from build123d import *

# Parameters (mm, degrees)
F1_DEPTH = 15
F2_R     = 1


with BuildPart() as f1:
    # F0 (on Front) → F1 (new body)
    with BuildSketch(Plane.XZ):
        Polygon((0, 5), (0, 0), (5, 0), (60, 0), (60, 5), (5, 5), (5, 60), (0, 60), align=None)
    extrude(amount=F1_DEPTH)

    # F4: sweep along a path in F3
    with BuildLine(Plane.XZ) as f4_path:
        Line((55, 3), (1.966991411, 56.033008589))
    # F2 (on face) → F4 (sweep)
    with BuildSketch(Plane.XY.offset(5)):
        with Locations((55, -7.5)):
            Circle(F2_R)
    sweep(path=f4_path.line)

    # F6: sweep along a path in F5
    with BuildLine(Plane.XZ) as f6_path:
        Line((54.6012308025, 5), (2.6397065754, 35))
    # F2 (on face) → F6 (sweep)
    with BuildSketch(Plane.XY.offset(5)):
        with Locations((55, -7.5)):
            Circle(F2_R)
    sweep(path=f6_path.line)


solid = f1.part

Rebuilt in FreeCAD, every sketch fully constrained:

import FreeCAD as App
import Part
import Sketcher

V = App.Vector
Q = App.Units.Quantity

doc = App.newDocument("Part")
body = doc.addObject("PartDesign::Body", "Body")

# Sketch on XZ plane
sketch1 = body.newObject("Sketcher::SketchObject", "Sketch")
sketch1.AttachmentSupport = (doc.getObject("XZ_Plane"), [""])
sketch1.MapMode = "FlatFace"
sketch1.addGeometry([
    Part.LineSegment(V(0, 0, 0), V(60, 0, 0)),  # 0
    Part.LineSegment(V(60, 0, 0), V(60, 5, 0)),  # 1
    Part.LineSegment(V(60, 5, 0), V(5, 5, 0)),  # 2
    Part.LineSegment(V(5, 5, 0), V(5, 60, 0)),  # 3
    Part.LineSegment(V(5, 60, 0), V(0, 60, 0)),  # 4
    Part.LineSegment(V(0, 60, 0), V(0, 0, 0)),  # 5
], False)
sketch1.addConstraint([
    Sketcher.Constraint("Coincident", 0, 2, 1, 1),
    Sketcher.Constraint("Coincident", 1, 2, 2, 1),
    Sketcher.Constraint("Coincident", 2, 2, 3, 1),
    Sketcher.Constraint("Coincident", 3, 2, 4, 1),
    Sketcher.Constraint("Coincident", 4, 2, 5, 1),
    Sketcher.Constraint("Coincident", 5, 2, 0, 1),
    Sketcher.Constraint("Horizontal", 0),
    Sketcher.Constraint("Vertical", 1),
    Sketcher.Constraint("Horizontal", 2),
    Sketcher.Constraint("Vertical", 3),
    Sketcher.Constraint("Horizontal", 4),
    Sketcher.Constraint("Vertical", 5),
    Sketcher.Constraint("Coincident", 5, 2, -1, 1),
    Sketcher.Constraint("Equal", 4, 1),
    Sketcher.Constraint("Equal", 2, 3),
    Sketcher.Constraint("DistanceX", 0, 1, 0, 2, Q("60 mm")),
    Sketcher.Constraint("DistanceX", 2, 2, 2, 1, Q("55 mm")),
])
pad1 = body.newObject("PartDesign::Pad", "Pad")
pad1.Profile = sketch1
pad1.Length = 15

# Sketch on XY plane
sketch2 = body.newObject("Sketcher::SketchObject", "Sketch001")
sketch2.AttachmentSupport = (doc.getObject("XY_Plane"), [""])
sketch2.MapMode = "FlatFace"
sketch2.AttachmentOffset = App.Placement(V(0, 0, 5), App.Rotation())
sketch2.addGeometry(Part.Circle(V(55, -7.5, 0), V(0, 0, 1), 1), False)
sketch2.addConstraint([
    Sketcher.Constraint("Diameter", 0, Q("2 mm")),
    Sketcher.Constraint("DistanceX", -1, 1, 0, 3, Q("55 mm")),
    Sketcher.Constraint("DistanceY", 0, 3, -1, 1, Q("7.5 mm")),
])

# Sketch on an angled plane
sketch3 = body.newObject("Sketcher::SketchObject", "Sketch002")
sketch3.Placement = App.Placement(V(29, 0, 29), App.Rotation(V(-0.707106781, 0, 0.707106781), V(0, 0.999999999, 0), V(-0.707106781, 0, -0.707106781), "ZXY"))
sketch3.addGeometry(Part.LineSegment(V(-37, 0, 0), V(38, 0, 0)), False)
sketch3.addConstraint([
    Sketcher.Constraint("Horizontal", 0),
    Sketcher.Constraint("PointOnObject", 0, 1, -1),
    Sketcher.Constraint("DistanceX", 0, 1, 0, 2, Q("75 mm")),
    Sketcher.Constraint("DistanceX", 0, 1, -1, 1, Q("36.769553 mm")),
])
doc.recompute()

additivepipe = body.newObject("PartDesign::AdditivePipe", "AdditivePipe")
additivepipe.Profile = sketch2
additivepipe.Spine = (sketch3, ["Edge1"])

# Sketch on XY plane
sketch4 = body.newObject("Sketcher::SketchObject", "Sketch003")
sketch4.AttachmentSupport = (doc.getObject("XY_Plane"), [""])
sketch4.MapMode = "FlatFace"
sketch4.AttachmentOffset = App.Placement(V(0, 0, 5), App.Rotation())
sketch4.addGeometry(Part.Circle(V(55, -7.5, 0), V(0, 0, 1), 1), False)
sketch4.addConstraint([
    Sketcher.Constraint("Diameter", 0, Q("2 mm")),
    Sketcher.Constraint("DistanceX", -1, 1, 0, 3, Q("55 mm")),
    Sketcher.Constraint("DistanceY", 0, 3, -1, 1, Q("7.5 mm")),
])

# Sketch on an angled plane
sketch5 = body.newObject("Sketcher::SketchObject", "Sketch004")
sketch5.Placement = App.Placement(V(15.815371, 0, 27.393026), App.Rotation(V(-0.866025404, 0, 0.5), V(0, 1, 0), V(-0.5, 0, -0.866025404), "ZXY"))
sketch5.addGeometry(Part.LineSegment(V(-45, 0, 0), V(15, 0, 0)), False)
sketch5.addConstraint([
    Sketcher.Constraint("Horizontal", 0),
    Sketcher.Constraint("PointOnObject", 0, 1, -1),
    Sketcher.Constraint("DistanceX", 0, 1, 0, 2, Q("60 mm")),
    Sketcher.Constraint("DistanceX", 0, 1, -1, 1, Q("44.786053 mm")),
])
doc.recompute()

additivepipe2 = body.newObject("PartDesign::AdditivePipe", "AdditivePipe001")
additivepipe2.Profile = sketch4
additivepipe2.Spine = (sketch5, ["Edge1"])

doc.recompute()
